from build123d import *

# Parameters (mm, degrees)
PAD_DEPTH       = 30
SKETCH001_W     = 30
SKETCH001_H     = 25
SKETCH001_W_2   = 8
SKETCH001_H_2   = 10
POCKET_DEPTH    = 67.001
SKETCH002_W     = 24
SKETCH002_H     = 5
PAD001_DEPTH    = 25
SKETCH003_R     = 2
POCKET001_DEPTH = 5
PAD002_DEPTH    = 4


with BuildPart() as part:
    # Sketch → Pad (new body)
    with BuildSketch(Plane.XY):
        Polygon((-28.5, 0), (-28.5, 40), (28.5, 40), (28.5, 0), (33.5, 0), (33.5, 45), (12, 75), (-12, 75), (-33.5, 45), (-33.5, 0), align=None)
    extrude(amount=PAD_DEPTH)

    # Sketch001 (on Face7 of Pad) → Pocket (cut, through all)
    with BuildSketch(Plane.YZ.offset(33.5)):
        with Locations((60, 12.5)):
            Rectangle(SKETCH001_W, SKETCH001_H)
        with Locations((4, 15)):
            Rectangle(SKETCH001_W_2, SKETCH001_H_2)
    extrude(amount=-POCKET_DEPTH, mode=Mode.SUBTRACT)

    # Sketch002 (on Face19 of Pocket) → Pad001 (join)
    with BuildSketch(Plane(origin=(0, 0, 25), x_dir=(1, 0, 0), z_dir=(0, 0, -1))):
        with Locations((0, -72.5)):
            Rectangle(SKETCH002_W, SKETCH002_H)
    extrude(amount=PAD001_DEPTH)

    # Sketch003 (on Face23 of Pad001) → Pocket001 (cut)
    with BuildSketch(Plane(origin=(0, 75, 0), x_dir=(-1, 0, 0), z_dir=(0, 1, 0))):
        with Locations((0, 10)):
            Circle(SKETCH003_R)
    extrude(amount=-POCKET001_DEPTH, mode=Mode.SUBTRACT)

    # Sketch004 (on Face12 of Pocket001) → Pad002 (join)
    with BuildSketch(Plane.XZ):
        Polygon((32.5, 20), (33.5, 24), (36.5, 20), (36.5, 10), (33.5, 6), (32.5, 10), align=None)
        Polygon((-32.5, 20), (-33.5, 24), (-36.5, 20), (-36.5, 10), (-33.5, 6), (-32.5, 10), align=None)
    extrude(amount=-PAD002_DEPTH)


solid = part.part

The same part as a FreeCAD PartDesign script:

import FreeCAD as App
import Part
import Sketcher

V = App.Vector
Q = App.Units.Quantity

doc = App.newDocument("Part")
params = doc.addObject("Spreadsheet::Sheet", "Params")
for row, (alias, value) in enumerate([
    ("sketch1_width", "57 mm"),
    ("sketch1_width2", "5 mm"),
    ("sketch1_width3", "24 mm"),
    ("sketch1_height", "40 mm"),
    ("sketch1_height2", "45 mm"),
    ("pad1_length", "30 mm"),
    ("sketch2_width", "30 mm"),
    ("sketch2_width2", "8 mm"),
    ("sketch2_height", "25 mm"),
    ("sketch2_height2", "10 mm"),
    ("sketch3_width", "24 mm"),
    ("sketch3_height", "5 mm"),
    ("pad2_length", "25 mm"),
    ("sketch4_diameter", "4 mm"),
    ("pocket2_length", "5 mm"),
    ("sketch5_height", "10 mm"),
    ("sketch5_length", "5 mm"),
    ("pad3_length", "4 mm"),
], start=1):
    params.set(f"A{row}", alias)
    params.set(f"B{row}", "=" + value)
    params.setAlias(f"B{row}", alias)

body = doc.addObject("PartDesign::Body", "Body")

sketch1 = doc.addObject("Sketcher::SketchObject", "Sketch")
body.addObject(sketch1)
sketch1.AttachmentSupport = (doc.XY_Plane, [""])
sketch1.MapMode = "FlatFace"
sketch1.addGeometry([
    Part.LineSegment(V(-28.5, 0, 0), V(-28.5, 40, 0)),
    Part.LineSegment(V(-28.5, 40, 0), V(28.5, 40, 0)),
    Part.LineSegment(V(28.5, 40, 0), V(28.5, 0, 0)),
    Part.LineSegment(V(28.5, 0, 0), V(33.5, 0, 0)),
    Part.LineSegment(V(33.5, 0, 0), V(33.5, 45, 0)),
    Part.LineSegment(V(33.5, 45, 0), V(12, 75, 0)),
    Part.LineSegment(V(12, 75, 0), V(-12, 75, 0)),
    Part.LineSegment(V(-12, 75, 0), V(-33.5, 45, 0)),
    Part.LineSegment(V(-33.5, 45, 0), V(-33.5, 0, 0)),
    Part.LineSegment(V(-33.5, 0, 0), V(-28.5, 0, 0)),
], False)
sketch1.addConstraint([
    Sketcher.Constraint("Coincident", 0, 2, 1, 1),
    Sketcher.Constraint("Coincident", 1, 2, 2, 1),
    Sketcher.Constraint("Coincident", 2, 2, 3, 1),
    Sketcher.Constraint("Coincident", 3, 2, 4, 1),
    Sketcher.Constraint("Coincident", 4, 2, 5, 1),
    Sketcher.Constraint("Coincident", 5, 2, 6, 1),
    Sketcher.Constraint("Coincident", 6, 2, 7, 1),
    Sketcher.Constraint("Coincident", 7, 2, 8, 1),
    Sketcher.Constraint("Coincident", 8, 2, 9, 1),
    Sketcher.Constraint("Coincident", 9, 2, 0, 1),
    Sketcher.Constraint("Vertical", 0),
    Sketcher.Constraint("Horizontal", 1),
    Sketcher.Constraint("Vertical", 2),
    Sketcher.Constraint("Horizontal", 3),
    Sketcher.Constraint("Vertical", 4),
    Sketcher.Constraint("Horizontal", 6),
    Sketcher.Constraint("Vertical", 8),
    Sketcher.Constraint("Horizontal", 9),
    Sketcher.Constraint("Symmetric", 3, 2, 8, 2, -1, 1),
    Sketcher.Constraint("Symmetric", 2, 2, 9, 2, -2),
    Sketcher.Constraint("Horizontal", 4, 2, 7, 2),
    Sketcher.Constraint("Equal", 5, 7),
    Sketcher.Constraint("DistanceX", 1, 1, 1, 2, Q("57 mm")),
    Sketcher.Constraint("DistanceX", 3, 1, 3, 2, Q("5 mm")),
    Sketcher.Constraint("DistanceX", 6, 2, 6, 1, Q("24 mm")),
    Sketcher.Constraint("DistanceY", 0, 1, 0, 2, Q("40 mm")),
    Sketcher.Constraint("DistanceY", 4, 1, 4, 2, Q("45 mm")),
    Sketcher.Constraint("DistanceY", -1, 1, 5, 2, Q("75 mm")),
])
sketch1.setExpression("Constraints[22]", "Params.sketch1_width")
sketch1.setExpression("Constraints[23]", "Params.sketch1_width2")
sketch1.setExpression("Constraints[24]", "Params.sketch1_width3")
sketch1.setExpression("Constraints[25]", "Params.sketch1_height")
sketch1.setExpression("Constraints[26]", "Params.sketch1_height2")
pad1 = doc.addObject("PartDesign::Pad", "Pad")
body.addObject(pad1)
pad1.Profile = sketch1
pad1.setExpression("Length", "Params.pad1_length")

sketch2 = doc.addObject("Sketcher::SketchObject", "Sketch001")
body.addObject(sketch2)
sketch2.AttachmentSupport = (doc.YZ_Plane, [""])
sketch2.MapMode = "FlatFace"
sketch2.AttachmentOffset = App.Placement(V(0, 0, 33.5), App.Rotation())
sketch2.addGeometry([
    Part.LineSegment(V(45, 25, 0), V(45, 0, 0)),
    Part.LineSegment(V(45, 0, 0), V(75, 0, 0)),
    Part.LineSegment(V(75, 0, 0), V(75, 25, 0)),
    Part.LineSegment(V(75, 25, 0), V(45, 25, 0)),
    Part.LineSegment(V(0, 20, 0), V(0, 10, 0)),
    Part.LineSegment(V(0, 10, 0), V(8, 10, 0)),
    Part.LineSegment(V(8, 10, 0), V(8, 20, 0)),
    Part.LineSegment(V(8, 20, 0), V(0, 20, 0)),
], False)
sketch2.addConstraint([
    Sketcher.Constraint("Coincident", 0, 2, 1, 1),
    Sketcher.Constraint("Coincident", 1, 2, 2, 1),
    Sketcher.Constraint("Coincident", 2, 2, 3, 1),
    Sketcher.Constraint("Coincident", 3, 2, 0, 1),
    Sketcher.Constraint("Coincident", 4, 2, 5, 1),
    Sketcher.Constraint("Coincident", 5, 2, 6, 1),
    Sketcher.Constraint("Coincident", 6, 2, 7, 1),
    Sketcher.Constraint("Coincident", 7, 2, 4, 1),
    Sketcher.Constraint("Vertical", 0),
    Sketcher.Constraint("Horizontal", 1),
    Sketcher.Constraint("Vertical", 2),
    Sketcher.Constraint("Horizontal", 3),
    Sketcher.Constraint("Vertical", 4),
    Sketcher.Constraint("Horizontal", 5),
    Sketcher.Constraint("Vertical", 6),
    Sketcher.Constraint("Horizontal", 7),
    Sketcher.Constraint("PointOnObject", 0, 2, -1),
    Sketcher.Constraint("PointOnObject", 4, 2, -2),
    Sketcher.Constraint("DistanceX", 1, 1, 1, 2, Q("30 mm")),
    Sketcher.Constraint("DistanceX", 5, 1, 5, 2, Q("8 mm")),
    Sketcher.Constraint("DistanceY", 0, 2, 0, 1, Q("25 mm")),
    Sketcher.Constraint("DistanceY", 4, 2, 4, 1, Q("10 mm")),
    Sketcher.Constraint("DistanceX", -1, 1, 0, 2, Q("45 mm")),
    Sketcher.Constraint("DistanceY", -1, 1, 4, 2, Q("10 mm")),
])
sketch2.setExpression("Constraints[18]", "Params.sketch2_width")
sketch2.setExpression("Constraints[19]", "Params.sketch2_width2")
sketch2.setExpression("Constraints[20]", "Params.sketch2_height")
sketch2.setExpression("Constraints[21]", "Params.sketch2_height2")
pocket1 = doc.addObject("PartDesign::Pocket", "Pocket")
body.addObject(pocket1)
pocket1.Profile = sketch2
pocket1.Type = "ThroughAll"

sketch3 = doc.addObject("Sketcher::SketchObject", "Sketch002")
body.addObject(sketch3)
sketch3.AttachmentSupport = (doc.XY_Plane, [""])
sketch3.MapMode = "FlatFace"
sketch3.AttachmentOffset = App.Placement(V(0, 0, 25), App.Rotation())
sketch3.addGeometry([
    Part.LineSegment(V(-12, 70, 0), V(-12, 75, 0)),
    Part.LineSegment(V(-12, 75, 0), V(12, 75, 0)),
    Part.LineSegment(V(12, 75, 0), V(12, 70, 0)),
    Part.LineSegment(V(12, 70, 0), V(-12, 70, 0)),
], False)
sketch3.addConstraint([
    Sketcher.Constraint("Coincident", 0, 2, 1, 1),
    Sketcher.Constraint("Coincident", 1, 2, 2, 1),
    Sketcher.Constraint("Coincident", 2, 2, 3, 1),
    Sketcher.Constraint("Coincident", 3, 2, 0, 1),
    Sketcher.Constraint("Vertical", 0),
    Sketcher.Constraint("Horizontal", 1),
    Sketcher.Constraint("Vertical", 2),
    Sketcher.Constraint("Horizontal", 3),
    Sketcher.Constraint("DistanceX", 1, 1, 1, 2, Q("24 mm")),
    Sketcher.Constraint("DistanceY", 0, 1, 0, 2, Q("5 mm")),
    Sketcher.Constraint("DistanceX", 0, 2, -1, 1, Q("12 mm")),
    Sketcher.Constraint("DistanceY", -1, 1, 0, 2, Q("75 mm")),
])
sketch3.setExpression("Constraints[8]", "Params.sketch3_width")
sketch3.setExpression("Constraints[9]", "Params.sketch3_height")
pad2 = doc.addObject("PartDesign::Pad", "Pad001")
body.addObject(pad2)
pad2.Profile = sketch3
pad2.setExpression("Length", "Params.pad2_length")
pad2.Reversed = True

sketch4 = doc.addObject("Sketcher::SketchObject", "Sketch003")
body.addObject(sketch4)
sketch4.AttachmentSupport = (doc.XZ_Plane, [""])
sketch4.MapMode = "FlatFace"
sketch4.AttachmentOffset = App.Placement(V(0, 0, -75), App.Rotation())
sketch4.addGeometry(Part.Circle(V(0, 10, 0), V(0, 0, 1), 2), False)
sketch4.addConstraint([
    Sketcher.Constraint("PointOnObject", 0, 3, -2),
    Sketcher.Constraint("Diameter", 0, Q("4 mm")),
    Sketcher.Constraint("DistanceY", -1, 1, 0, 3, Q("10 mm")),
])
sketch4.setExpression("Constraints[1]", "Params.sketch4_diameter")
pocket2 = doc.addObject("PartDesign::Pocket", "Pocket001")
body.addObject(pocket2)
pocket2.Profile = sketch4
pocket2.setExpression("Length", "Params.pocket2_length")
pocket2.Reversed = True

sketch5 = doc.addObject("Sketcher::SketchObject", "Sketch004")
body.addObject(sketch5)
sketch5.AttachmentSupport = (doc.XZ_Plane, [""])
sketch5.MapMode = "FlatFace"
sketch5.addGeometry([
    Part.LineSegment(V(33.5, 24, 0), V(32.5, 20, 0)),
    Part.LineSegment(V(32.5, 20, 0), V(32.5, 10, 0)),
    Part.LineSegment(V(32.5, 10, 0), V(33.5, 6, 0)),
    Part.LineSegment(V(33.5, 6, 0), V(36.5, 10, 0)),
    Part.LineSegment(V(36.5, 10, 0), V(36.5, 20, 0)),
    Part.LineSegment(V(36.5, 20, 0), V(33.5, 24, 0)),
    Part.LineSegment(V(-32.5, 20, 0), V(-33.5, 24, 0)),
    Part.LineSegment(V(-33.5, 24, 0), V(-36.5, 20, 0)),
    Part.LineSegment(V(-36.5, 20, 0), V(-36.5, 10, 0)),
    Part.LineSegment(V(-36.5, 10, 0), V(-33.5, 6, 0)),
    Part.LineSegment(V(-33.5, 6, 0), V(-32.5, 10, 0)),
    Part.LineSegment(V(-32.5, 10, 0), V(-32.5, 20, 0)),
], False)
sketch5.addConstraint([
    Sketcher.Constraint("Coincident", 0, 2, 1, 1),
    Sketcher.Constraint("Coincident", 1, 2, 2, 1),
    Sketcher.Constraint("Coincident", 2, 2, 3, 1),
    Sketcher.Constraint("Coincident", 3, 2, 4, 1),
    Sketcher.Constraint("Coincident", 4, 2, 5, 1),
    Sketcher.Constraint("Coincident", 5, 2, 0, 1),
    Sketcher.Constraint("Coincident", 6, 2, 7, 1),
    Sketcher.Constraint("Coincident", 7, 2, 8, 1),
    Sketcher.Constraint("Coincident", 8, 2, 9, 1),
    Sketcher.Constraint("Coincident", 9, 2, 10, 1),
    Sketcher.Constraint("Coincident", 10, 2, 11, 1),
    Sketcher.Constraint("Coincident", 11, 2, 6, 1),
    Sketcher.Constraint("Vertical", 1),
    Sketcher.Constraint("Vertical", 4),
    Sketcher.Constraint("Vertical", 8),
    Sketcher.Constraint("Vertical", 11),
    Sketcher.Constraint("Symmetric", 5, 2, 6, 2, -2),
    Sketcher.Constraint("Symmetric", 4, 2, 7, 2, -2),
    Sketcher.Constraint("Symmetric", 2, 2, 9, 2, -2),
    Sketcher.Constraint("Symmetric", 1, 2, 10, 2, -2),
    Sketcher.Constraint("Parallel", 2, 6),
    Sketcher.Constraint("Parallel", 3, 7),
    Sketcher.Constraint("Parallel", 5, 9),
    Sketcher.Constraint("Parallel", 0, 10),
    Sketcher.Constraint("Horizontal", 1, 2, 3, 2),
    Sketcher.Constraint("Horizontal", 0, 2, 4, 2),
    Sketcher.Constraint("DistanceY", 1, 2, 1, 1, Q("10 mm")),
    Sketcher.Constraint("Distance", 3, Q("5 mm")),
    Sketcher.Constraint("DistanceY", -1, 1, 0, 2, Q("20 mm")),
    Sketcher.Constraint("DistanceY", -1, 1, 2, 2, Q("6 mm")),
    Sketcher.Constraint("DistanceX", 1, 2, 2, 2, Q("1 mm")),
    Sketcher.Constraint("DistanceX", 6, 2, 0, 2, Q("66 mm")),
])
sketch5.setExpression("Constraints[26]", "Params.sketch5_height")
sketch5.setExpression("Constraints[27]", "Params.sketch5_length")
pad3 = doc.addObject("PartDesign::Pad", "Pad002")
body.addObject(pad3)
pad3.Profile = sketch5
pad3.setExpression("Length", "Params.pad3_length")
pad3.Reversed = True

doc.recompute()
